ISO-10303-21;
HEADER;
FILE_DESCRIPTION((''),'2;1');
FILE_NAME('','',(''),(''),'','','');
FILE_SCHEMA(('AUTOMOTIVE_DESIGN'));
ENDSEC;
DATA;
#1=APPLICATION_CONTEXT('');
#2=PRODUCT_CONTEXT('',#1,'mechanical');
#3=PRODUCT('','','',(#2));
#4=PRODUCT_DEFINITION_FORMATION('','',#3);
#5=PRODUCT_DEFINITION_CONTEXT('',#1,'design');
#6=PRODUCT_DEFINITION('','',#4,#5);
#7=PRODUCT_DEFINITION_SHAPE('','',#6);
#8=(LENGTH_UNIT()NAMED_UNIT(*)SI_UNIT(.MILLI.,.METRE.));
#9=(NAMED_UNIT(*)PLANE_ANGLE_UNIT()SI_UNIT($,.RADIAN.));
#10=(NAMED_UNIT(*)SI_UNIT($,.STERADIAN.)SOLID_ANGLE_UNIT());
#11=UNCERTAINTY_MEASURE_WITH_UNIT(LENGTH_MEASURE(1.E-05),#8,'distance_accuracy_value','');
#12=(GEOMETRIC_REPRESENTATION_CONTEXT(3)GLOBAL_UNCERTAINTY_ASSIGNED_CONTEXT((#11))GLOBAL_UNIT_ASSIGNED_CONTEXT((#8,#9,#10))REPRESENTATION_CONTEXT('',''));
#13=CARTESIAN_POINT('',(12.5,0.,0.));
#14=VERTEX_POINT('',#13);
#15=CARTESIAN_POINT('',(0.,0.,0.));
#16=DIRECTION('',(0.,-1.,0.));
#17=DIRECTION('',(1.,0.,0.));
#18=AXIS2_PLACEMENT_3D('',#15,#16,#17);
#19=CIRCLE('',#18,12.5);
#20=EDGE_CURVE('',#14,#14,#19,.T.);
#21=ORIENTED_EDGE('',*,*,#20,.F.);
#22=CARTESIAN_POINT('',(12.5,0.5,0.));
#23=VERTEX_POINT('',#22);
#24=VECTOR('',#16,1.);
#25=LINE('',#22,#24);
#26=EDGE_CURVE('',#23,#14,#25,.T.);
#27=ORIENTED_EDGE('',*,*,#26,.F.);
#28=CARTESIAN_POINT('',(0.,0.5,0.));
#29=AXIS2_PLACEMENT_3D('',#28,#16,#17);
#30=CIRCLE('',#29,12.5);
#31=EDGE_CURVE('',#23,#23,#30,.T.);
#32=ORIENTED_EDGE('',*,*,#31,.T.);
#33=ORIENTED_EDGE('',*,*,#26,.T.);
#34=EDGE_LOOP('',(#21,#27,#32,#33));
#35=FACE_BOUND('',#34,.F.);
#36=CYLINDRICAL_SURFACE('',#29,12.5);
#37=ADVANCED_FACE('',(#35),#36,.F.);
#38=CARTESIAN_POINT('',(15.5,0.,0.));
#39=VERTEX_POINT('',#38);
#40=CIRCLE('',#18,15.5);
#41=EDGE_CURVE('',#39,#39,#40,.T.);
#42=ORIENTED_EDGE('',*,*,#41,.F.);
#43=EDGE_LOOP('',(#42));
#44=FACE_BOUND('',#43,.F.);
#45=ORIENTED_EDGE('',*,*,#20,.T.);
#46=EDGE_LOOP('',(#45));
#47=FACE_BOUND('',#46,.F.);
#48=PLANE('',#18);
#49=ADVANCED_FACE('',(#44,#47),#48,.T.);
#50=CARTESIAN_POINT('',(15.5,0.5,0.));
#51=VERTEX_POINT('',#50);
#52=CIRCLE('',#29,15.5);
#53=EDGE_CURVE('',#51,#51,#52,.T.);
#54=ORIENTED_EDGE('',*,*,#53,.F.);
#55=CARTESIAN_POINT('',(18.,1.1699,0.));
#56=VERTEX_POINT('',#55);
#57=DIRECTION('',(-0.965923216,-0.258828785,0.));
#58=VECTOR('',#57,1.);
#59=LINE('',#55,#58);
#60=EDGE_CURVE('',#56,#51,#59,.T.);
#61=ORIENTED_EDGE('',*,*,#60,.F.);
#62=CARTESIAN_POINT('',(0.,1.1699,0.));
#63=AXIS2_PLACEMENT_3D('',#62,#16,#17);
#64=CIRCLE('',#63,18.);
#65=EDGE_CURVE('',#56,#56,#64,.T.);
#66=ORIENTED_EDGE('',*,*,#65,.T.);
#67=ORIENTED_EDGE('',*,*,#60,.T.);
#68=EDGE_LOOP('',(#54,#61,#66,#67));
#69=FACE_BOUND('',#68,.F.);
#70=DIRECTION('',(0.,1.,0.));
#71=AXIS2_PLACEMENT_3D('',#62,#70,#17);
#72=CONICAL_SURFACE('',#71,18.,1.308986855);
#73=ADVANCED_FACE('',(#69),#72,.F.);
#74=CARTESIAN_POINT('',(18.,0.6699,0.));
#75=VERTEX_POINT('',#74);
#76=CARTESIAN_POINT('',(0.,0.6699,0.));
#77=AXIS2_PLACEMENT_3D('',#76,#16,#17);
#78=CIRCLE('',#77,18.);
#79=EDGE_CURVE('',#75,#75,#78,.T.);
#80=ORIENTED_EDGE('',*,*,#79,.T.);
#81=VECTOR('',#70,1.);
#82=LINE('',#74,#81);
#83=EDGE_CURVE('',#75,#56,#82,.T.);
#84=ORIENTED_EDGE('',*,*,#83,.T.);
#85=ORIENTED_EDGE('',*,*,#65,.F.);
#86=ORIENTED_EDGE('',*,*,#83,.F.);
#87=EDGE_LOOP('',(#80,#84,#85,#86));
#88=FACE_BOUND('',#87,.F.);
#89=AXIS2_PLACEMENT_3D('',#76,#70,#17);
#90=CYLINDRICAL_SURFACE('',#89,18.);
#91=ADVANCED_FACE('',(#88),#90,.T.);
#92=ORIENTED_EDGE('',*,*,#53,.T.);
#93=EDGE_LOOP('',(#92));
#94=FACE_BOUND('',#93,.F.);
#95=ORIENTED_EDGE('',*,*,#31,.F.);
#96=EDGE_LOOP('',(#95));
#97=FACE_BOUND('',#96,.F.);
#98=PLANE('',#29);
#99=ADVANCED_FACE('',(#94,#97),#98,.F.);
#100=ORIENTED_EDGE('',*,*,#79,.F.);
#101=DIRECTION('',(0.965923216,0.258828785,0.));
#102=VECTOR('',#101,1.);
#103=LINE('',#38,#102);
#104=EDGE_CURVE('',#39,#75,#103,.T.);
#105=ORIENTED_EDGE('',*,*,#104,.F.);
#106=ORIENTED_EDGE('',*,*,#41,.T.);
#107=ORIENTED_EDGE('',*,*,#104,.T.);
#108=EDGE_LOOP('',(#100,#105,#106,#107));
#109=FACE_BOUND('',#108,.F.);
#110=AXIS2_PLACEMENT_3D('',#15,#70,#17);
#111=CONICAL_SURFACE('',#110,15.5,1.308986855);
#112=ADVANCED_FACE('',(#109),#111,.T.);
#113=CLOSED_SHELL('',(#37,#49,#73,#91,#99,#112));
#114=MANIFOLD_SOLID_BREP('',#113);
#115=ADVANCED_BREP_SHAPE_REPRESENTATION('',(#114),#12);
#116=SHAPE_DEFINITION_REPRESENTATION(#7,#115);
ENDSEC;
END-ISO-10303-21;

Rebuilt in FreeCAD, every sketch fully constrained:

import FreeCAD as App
import Part
import Sketcher
Q = App.Units.Quantity

doc = App.newDocument("Part")
body = doc.addObject("PartDesign::Body", "Body")

# Sketch on XY plane
sketch1 = body.newObject("Sketcher::SketchObject", "Sketch")
sketch1.AttachmentSupport = (doc.getObject("XY_Plane"), [""])
sketch1.MapMode = "FlatFace"
sketch1.addGeometry([
    Part.LineSegment(App.Vector(15.5, 0.5, 0), App.Vector(12.5, 0.5, 0)),  # 0
    Part.LineSegment(App.Vector(12.5, 0.5, 0), App.Vector(12.5, 0, 0)),  # 1
    Part.LineSegment(App.Vector(12.5, 0, 0), App.Vector(15.5, 0, 0)),  # 2
    Part.LineSegment(App.Vector(15.5, 0, 0), App.Vector(18, 0.67, 0)),  # 3
    Part.LineSegment(App.Vector(18, 0.67, 0), App.Vector(18, 1.17, 0)),  # 4
    Part.LineSegment(App.Vector(18, 1.17, 0), App.Vector(15.5, 0.5, 0)),  # 5
], False)
sketch1.addConstraint([
    Sketcher.Constraint("Coincident", 0, 2, 1, 1),
    Sketcher.Constraint("Coincident", 1, 2, 2, 1),
    Sketcher.Constraint("Coincident", 2, 2, 3, 1),
    Sketcher.Constraint("Coincident", 3, 2, 4, 1),
    Sketcher.Constraint("Coincident", 4, 2, 5, 1),
    Sketcher.Constraint("Coincident", 5, 2, 0, 1),
    Sketcher.Constraint("Horizontal", 0),
    Sketcher.Constraint("Vertical", 1),
    Sketcher.Constraint("Horizontal", 2),
    Sketcher.Constraint("Vertical", 4),
    Sketcher.Constraint("PointOnObject", 1, 2, -1),
    Sketcher.Constraint("Parallel", 3, 5),
    Sketcher.Constraint("Vertical", 2, 2, 5, 2),
    Sketcher.Constraint("DistanceX", 0, 2, 0, 1, Q("3 mm")),
    Sketcher.Constraint("Angle", 3, Q("15.0006 deg")),
    Sketcher.Constraint("DistanceY", 1, 2, 1, 1, Q("0.5 mm")),
    Sketcher.Constraint("DistanceX", -1, 1, 3, 2, Q("18 mm")),
    Sketcher.Constraint("DistanceX", -1, 1, 0, 2, Q("12.5 mm")),
])
revolution = body.newObject("PartDesign::Revolution", "Revolution")
revolution.Profile = sketch1
revolution.ReferenceAxis = (sketch1, ["V_Axis"])
revolution.Angle = 360

doc.recompute()
